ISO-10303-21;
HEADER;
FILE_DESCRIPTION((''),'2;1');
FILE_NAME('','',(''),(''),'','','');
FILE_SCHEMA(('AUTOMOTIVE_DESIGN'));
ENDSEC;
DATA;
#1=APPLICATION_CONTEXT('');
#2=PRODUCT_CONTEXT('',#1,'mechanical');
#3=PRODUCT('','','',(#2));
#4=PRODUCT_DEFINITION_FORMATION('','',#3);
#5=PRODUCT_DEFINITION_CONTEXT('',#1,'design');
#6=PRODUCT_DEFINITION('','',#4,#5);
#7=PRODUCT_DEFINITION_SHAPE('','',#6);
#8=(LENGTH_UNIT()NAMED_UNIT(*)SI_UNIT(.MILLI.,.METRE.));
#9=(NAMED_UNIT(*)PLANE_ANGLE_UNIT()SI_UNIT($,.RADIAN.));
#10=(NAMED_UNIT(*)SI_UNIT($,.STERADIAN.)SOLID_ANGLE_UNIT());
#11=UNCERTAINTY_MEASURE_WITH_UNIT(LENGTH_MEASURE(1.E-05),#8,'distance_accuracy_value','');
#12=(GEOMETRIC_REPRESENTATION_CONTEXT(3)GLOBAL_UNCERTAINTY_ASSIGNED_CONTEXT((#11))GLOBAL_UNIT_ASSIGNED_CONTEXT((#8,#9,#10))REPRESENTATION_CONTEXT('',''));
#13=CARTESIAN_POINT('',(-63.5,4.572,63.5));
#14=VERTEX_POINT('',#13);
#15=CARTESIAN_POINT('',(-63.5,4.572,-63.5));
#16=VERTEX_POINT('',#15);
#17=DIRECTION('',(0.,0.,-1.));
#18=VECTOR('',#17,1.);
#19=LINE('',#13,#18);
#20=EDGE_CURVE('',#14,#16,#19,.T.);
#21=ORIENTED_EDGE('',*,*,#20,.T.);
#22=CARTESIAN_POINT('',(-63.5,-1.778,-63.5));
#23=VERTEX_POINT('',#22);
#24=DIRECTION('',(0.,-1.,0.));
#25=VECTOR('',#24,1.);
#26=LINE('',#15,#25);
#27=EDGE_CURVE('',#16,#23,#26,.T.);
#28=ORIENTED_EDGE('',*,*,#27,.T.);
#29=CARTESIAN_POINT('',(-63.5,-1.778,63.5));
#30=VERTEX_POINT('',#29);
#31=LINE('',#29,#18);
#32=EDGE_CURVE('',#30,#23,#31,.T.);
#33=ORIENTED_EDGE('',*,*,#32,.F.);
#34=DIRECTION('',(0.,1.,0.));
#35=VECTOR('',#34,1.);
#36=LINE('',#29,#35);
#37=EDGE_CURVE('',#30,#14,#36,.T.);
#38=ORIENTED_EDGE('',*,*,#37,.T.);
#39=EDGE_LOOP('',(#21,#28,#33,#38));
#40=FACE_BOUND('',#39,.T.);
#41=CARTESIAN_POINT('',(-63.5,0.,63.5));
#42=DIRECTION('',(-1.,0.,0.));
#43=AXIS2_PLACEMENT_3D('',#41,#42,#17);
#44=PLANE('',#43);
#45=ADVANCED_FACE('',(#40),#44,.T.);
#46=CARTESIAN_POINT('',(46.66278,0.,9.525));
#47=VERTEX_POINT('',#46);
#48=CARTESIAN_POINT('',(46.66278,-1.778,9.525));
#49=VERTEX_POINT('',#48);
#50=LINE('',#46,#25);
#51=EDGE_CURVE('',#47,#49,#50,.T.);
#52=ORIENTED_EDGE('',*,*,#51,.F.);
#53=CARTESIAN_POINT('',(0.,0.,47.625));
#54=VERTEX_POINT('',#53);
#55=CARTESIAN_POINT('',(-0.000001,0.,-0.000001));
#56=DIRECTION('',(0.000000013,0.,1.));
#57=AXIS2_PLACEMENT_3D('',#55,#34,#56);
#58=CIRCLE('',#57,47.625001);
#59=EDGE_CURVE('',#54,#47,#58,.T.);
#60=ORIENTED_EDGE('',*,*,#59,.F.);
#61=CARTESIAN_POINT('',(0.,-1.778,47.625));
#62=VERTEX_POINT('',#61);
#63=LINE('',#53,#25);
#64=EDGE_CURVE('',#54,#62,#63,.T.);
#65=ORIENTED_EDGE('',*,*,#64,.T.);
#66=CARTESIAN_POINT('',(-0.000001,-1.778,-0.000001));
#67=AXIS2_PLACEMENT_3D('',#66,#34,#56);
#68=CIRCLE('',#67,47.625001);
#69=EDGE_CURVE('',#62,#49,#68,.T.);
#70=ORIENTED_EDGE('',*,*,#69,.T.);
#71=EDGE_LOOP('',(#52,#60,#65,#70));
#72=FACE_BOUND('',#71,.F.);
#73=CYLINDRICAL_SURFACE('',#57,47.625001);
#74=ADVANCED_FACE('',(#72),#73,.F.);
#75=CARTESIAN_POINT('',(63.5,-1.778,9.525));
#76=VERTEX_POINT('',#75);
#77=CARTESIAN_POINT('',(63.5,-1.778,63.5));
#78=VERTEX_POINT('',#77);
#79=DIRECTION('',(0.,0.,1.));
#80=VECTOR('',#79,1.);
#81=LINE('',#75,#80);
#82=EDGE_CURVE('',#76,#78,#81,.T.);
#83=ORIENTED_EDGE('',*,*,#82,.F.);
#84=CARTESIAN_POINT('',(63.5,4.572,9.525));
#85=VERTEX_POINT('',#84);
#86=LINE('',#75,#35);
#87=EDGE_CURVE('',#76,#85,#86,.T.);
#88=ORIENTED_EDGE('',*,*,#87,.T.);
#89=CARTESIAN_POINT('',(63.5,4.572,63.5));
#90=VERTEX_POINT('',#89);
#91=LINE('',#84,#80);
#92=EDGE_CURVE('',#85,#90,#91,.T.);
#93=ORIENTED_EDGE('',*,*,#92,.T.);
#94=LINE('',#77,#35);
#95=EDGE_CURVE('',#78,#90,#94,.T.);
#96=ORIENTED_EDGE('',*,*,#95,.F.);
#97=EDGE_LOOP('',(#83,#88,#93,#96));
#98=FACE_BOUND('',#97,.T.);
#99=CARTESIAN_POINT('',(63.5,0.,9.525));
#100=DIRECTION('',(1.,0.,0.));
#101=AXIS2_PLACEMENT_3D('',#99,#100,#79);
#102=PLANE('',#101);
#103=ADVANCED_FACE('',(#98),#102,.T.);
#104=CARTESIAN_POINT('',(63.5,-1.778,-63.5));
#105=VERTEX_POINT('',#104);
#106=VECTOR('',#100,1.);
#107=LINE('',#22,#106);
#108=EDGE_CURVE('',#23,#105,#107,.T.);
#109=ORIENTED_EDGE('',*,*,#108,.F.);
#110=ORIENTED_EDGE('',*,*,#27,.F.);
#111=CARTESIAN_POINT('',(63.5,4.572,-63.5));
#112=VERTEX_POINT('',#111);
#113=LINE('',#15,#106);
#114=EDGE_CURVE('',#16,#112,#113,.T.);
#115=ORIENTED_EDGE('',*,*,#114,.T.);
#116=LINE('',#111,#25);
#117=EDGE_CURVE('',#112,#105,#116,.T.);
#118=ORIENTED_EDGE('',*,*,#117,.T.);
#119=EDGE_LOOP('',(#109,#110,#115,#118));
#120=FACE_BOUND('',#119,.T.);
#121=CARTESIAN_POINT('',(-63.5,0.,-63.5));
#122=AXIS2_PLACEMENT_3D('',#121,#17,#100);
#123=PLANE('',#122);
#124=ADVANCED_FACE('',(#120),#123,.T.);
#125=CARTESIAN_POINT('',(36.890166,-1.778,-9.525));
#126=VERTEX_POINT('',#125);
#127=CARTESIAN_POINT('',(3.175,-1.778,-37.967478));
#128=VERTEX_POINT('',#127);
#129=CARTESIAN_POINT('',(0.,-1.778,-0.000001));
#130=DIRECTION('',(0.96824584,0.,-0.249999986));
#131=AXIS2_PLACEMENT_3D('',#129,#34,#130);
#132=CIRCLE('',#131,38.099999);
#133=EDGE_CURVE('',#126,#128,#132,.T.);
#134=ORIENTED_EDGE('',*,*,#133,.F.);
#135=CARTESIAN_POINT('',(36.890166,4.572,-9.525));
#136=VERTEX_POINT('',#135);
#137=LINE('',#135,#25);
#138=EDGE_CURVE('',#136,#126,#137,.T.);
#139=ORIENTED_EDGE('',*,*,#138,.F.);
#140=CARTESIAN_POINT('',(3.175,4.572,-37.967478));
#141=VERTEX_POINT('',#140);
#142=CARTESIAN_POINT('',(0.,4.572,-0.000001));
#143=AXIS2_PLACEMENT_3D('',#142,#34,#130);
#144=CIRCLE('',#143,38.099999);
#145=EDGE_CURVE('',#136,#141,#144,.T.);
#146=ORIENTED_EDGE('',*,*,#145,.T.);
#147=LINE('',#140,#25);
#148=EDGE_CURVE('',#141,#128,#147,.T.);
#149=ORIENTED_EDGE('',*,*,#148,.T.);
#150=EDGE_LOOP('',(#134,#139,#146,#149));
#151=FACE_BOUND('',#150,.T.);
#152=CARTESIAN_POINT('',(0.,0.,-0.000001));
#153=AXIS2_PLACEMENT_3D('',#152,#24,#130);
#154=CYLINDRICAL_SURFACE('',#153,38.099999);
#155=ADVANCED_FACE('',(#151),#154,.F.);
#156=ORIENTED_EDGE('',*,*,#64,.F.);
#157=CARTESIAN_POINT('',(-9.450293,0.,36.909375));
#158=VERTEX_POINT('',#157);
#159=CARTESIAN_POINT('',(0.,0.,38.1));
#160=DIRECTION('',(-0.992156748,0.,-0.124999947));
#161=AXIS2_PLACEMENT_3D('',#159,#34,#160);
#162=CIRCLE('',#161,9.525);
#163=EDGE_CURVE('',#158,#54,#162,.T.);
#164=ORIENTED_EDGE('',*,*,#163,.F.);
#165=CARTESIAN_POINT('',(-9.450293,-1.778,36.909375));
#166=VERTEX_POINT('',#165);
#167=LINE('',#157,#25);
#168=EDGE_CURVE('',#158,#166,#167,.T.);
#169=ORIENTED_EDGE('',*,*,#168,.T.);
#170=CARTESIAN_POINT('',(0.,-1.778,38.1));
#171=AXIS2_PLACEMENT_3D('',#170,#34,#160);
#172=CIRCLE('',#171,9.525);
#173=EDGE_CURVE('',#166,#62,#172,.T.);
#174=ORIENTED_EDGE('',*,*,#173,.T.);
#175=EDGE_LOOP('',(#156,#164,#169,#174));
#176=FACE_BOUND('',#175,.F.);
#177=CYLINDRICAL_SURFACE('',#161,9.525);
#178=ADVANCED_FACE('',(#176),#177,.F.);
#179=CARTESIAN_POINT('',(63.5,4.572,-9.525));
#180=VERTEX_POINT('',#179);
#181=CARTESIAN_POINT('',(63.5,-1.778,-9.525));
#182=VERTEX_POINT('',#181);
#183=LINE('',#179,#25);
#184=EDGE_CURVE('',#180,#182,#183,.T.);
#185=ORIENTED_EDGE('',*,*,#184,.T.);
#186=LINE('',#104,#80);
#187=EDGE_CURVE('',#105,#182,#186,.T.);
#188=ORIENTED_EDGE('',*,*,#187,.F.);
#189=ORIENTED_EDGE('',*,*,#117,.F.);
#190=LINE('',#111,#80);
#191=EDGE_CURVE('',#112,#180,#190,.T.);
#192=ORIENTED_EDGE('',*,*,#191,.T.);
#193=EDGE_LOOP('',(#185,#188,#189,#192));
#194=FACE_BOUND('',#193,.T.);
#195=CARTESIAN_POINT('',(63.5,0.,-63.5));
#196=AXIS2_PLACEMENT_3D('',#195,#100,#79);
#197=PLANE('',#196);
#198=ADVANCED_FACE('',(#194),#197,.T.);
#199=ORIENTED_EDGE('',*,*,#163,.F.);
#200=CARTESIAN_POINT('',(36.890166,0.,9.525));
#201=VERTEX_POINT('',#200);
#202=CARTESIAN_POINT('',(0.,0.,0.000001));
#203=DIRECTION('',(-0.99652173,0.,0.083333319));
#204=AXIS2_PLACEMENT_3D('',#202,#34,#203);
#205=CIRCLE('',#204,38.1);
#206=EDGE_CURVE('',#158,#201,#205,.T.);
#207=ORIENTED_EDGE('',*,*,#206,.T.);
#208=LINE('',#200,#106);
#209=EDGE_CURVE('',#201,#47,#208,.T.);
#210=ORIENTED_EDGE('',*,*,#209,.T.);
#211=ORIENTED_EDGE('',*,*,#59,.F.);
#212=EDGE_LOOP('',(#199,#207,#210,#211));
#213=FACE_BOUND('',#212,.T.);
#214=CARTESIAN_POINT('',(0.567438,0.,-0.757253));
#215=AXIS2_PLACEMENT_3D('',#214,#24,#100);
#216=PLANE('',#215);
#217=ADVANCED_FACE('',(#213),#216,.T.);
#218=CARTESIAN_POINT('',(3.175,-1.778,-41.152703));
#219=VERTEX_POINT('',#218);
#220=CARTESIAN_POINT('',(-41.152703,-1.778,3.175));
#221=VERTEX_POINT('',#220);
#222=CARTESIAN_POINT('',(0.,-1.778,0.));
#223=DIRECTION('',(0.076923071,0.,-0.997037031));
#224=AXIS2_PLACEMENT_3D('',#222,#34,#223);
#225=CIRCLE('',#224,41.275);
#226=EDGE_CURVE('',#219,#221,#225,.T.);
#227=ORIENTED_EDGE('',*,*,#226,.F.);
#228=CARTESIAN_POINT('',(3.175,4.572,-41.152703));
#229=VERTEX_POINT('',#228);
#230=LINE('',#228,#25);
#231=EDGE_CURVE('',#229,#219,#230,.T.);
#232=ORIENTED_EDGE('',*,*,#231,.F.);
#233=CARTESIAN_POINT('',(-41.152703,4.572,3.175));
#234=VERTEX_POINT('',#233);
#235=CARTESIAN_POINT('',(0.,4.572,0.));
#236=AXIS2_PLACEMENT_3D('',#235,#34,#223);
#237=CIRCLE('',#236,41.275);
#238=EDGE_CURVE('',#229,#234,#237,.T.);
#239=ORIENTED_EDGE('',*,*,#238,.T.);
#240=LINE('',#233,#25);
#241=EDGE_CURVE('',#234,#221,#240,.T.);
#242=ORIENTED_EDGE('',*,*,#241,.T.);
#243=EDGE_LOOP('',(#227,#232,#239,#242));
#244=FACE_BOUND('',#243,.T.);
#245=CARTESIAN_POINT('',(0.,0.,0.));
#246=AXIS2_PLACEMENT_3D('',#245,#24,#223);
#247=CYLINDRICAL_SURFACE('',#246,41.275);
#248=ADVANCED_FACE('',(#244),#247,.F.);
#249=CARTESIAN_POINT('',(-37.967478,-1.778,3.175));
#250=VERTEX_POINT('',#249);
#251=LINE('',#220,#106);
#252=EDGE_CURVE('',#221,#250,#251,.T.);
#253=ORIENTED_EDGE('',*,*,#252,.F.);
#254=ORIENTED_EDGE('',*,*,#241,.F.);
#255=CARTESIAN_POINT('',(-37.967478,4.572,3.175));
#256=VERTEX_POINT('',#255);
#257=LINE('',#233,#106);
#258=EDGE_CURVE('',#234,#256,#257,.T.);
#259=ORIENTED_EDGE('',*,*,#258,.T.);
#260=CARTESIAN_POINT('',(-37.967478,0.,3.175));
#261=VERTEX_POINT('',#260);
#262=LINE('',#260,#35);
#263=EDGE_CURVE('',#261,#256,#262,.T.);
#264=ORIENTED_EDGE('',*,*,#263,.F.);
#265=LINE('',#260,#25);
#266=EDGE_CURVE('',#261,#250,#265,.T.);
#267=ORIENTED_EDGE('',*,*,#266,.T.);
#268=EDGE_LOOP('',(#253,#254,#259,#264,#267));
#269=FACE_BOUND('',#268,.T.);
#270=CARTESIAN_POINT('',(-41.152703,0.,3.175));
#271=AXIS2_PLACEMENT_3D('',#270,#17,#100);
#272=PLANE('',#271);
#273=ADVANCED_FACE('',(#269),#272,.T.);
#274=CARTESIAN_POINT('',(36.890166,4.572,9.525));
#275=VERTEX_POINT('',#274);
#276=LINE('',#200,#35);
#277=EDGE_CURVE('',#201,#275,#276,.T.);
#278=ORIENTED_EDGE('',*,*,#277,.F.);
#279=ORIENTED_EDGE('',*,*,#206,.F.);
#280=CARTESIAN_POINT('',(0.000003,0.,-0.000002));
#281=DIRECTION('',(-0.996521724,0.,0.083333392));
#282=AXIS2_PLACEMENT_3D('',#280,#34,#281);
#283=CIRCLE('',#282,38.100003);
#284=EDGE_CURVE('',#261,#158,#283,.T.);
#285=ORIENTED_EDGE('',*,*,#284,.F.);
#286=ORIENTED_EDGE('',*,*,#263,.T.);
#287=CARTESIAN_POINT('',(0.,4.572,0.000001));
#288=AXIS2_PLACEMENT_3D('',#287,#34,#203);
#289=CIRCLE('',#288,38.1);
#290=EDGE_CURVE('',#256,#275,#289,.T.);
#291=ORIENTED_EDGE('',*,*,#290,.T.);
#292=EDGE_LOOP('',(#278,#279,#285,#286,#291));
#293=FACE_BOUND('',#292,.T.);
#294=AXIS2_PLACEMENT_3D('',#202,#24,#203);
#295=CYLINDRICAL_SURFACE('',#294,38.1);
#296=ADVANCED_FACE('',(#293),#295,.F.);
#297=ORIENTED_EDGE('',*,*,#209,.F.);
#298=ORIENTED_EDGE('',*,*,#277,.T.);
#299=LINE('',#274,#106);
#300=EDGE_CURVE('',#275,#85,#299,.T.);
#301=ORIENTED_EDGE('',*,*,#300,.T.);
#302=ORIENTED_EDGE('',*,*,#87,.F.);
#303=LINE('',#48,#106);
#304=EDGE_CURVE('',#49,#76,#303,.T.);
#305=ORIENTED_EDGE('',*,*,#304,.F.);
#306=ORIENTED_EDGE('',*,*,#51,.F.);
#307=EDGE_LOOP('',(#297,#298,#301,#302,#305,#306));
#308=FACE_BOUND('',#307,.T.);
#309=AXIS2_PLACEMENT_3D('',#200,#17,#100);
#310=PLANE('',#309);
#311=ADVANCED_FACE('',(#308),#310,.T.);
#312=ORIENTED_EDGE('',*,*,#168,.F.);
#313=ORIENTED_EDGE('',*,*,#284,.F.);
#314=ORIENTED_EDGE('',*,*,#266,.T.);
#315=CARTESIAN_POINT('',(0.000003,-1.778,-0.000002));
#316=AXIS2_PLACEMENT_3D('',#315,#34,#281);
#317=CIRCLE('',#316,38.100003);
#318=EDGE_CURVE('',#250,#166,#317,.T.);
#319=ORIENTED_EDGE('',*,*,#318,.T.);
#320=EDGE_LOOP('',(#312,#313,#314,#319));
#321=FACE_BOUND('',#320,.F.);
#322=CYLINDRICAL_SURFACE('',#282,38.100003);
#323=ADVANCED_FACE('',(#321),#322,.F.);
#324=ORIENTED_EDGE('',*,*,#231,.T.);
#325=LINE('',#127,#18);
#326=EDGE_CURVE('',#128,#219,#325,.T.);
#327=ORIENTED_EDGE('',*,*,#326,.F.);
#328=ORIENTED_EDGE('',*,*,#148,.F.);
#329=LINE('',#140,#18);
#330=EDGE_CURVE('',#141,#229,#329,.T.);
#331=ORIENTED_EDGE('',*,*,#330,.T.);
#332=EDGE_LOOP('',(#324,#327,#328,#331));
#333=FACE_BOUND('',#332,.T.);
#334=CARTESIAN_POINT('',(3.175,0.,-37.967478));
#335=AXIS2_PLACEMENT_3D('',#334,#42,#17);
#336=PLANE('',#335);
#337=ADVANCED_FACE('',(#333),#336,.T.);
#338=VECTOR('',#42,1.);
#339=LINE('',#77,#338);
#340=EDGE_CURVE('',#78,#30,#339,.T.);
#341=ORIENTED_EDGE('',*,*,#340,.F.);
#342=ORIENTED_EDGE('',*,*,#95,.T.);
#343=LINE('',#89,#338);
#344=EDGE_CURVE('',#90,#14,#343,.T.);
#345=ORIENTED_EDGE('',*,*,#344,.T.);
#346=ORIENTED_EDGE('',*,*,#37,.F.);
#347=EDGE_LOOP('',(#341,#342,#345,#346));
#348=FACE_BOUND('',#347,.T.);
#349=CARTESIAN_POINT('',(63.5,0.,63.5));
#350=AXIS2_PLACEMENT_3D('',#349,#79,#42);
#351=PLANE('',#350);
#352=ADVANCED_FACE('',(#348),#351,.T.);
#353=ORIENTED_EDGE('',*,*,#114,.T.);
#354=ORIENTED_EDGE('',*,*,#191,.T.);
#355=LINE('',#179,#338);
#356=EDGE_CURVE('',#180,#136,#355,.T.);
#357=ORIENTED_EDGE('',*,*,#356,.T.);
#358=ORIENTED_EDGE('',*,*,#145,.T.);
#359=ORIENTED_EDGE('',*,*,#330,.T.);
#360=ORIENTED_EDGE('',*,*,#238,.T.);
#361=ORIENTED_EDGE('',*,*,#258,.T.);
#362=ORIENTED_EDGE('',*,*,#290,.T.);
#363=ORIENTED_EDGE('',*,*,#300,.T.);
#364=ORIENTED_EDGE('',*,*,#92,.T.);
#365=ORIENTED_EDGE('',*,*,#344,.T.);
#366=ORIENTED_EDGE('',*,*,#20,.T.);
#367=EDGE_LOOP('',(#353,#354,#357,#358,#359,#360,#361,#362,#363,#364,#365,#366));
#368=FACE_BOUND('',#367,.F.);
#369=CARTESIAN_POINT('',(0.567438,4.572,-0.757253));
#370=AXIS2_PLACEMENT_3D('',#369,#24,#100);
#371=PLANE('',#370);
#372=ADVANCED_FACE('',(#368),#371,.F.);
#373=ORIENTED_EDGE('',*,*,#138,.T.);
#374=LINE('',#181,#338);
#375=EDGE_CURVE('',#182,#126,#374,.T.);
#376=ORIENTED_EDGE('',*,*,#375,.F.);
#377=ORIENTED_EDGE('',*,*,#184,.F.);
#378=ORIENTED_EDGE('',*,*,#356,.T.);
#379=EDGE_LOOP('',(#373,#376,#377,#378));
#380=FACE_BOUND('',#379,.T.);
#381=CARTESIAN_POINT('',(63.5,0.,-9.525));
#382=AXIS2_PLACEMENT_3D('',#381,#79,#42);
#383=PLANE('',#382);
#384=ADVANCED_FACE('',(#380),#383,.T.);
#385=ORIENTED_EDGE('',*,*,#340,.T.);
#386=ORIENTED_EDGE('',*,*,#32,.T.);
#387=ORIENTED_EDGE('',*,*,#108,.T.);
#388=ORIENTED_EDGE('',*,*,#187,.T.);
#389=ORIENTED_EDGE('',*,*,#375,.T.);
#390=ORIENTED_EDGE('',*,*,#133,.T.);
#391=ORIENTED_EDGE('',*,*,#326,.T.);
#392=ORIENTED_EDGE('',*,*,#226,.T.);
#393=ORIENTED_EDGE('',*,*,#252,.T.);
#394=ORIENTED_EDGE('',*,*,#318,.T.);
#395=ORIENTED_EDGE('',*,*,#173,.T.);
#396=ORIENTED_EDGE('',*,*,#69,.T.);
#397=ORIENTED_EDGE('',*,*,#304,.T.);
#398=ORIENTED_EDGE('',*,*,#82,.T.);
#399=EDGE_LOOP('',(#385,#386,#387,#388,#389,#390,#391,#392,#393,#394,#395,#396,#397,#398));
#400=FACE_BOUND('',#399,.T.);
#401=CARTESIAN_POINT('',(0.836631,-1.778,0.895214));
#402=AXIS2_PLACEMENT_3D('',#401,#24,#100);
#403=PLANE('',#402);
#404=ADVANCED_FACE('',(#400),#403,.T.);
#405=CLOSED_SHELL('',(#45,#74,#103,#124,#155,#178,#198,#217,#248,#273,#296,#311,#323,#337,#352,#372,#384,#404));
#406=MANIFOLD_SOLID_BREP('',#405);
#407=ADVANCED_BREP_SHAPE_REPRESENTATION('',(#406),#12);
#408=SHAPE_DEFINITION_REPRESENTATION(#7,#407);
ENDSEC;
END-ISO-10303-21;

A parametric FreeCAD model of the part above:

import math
import FreeCAD as App
import Part
import Sketcher
from FreeCAD import Vector
Q = App.Units.Quantity

doc = App.newDocument("Part")
body = doc.addObject("PartDesign::Body", "Body")

# Sketch on XZ plane
sketch1 = body.newObject("Sketcher::SketchObject", "Sketch")
sketch1.AttachmentSupport = (doc.getObject("XZ_Plane"), [""])
sketch1.MapMode = "FlatFace"
sketch1.addGeometry([
    Part.LineSegment(Vector(-63.5, -63.5, 0), Vector(63.5, -63.5, 0)),  # 0
    Part.LineSegment(Vector(63.5, -63.5, 0), Vector(63.5, -9.525, 0)),  # 1
    Part.LineSegment(Vector(63.5, -9.525, 0), Vector(36.890166, -9.525, 0)),  # 2
    Part.ArcOfCircle(Part.Circle(Vector(0, -0.000001, 0), Vector(0, 0, 1), 38.099999), math.radians(-85.219808), math.radians(-14.477511)),  # 3
    Part.LineSegment(Vector(3.175, -37.967478, 0), Vector(3.175, -41.152703, 0)),  # 4
    Part.ArcOfCircle(Part.Circle(Vector(0, 0, 0), Vector(0, 0, 1), 41.275), math.radians(175.588275), math.radians(274.411725)),  # 5
    Part.LineSegment(Vector(-41.152703, 3.175, 0), Vector(-37.967478, 3.175, 0)),  # 6
    Part.ArcOfCircle(Part.Circle(Vector(0.000003, -0.000002, 0), Vector(0, 0, 1), 38.100003), math.radians(104.361515), math.radians(175.219805)),  # 7
    Part.ArcOfCircle(Part.Circle(Vector(0, 38.1, 0), Vector(0, 0, 1), 9.525), math.radians(90.000003), math.radians(187.180753)),  # 8
    Part.ArcOfCircle(Part.Circle(Vector(-0.000001, -0.000001, 0), Vector(0, 0, 1), 47.625001), math.radians(11.53696), math.radians(89.999999)),  # 9
    Part.LineSegment(Vector(46.66278, 9.525, 0), Vector(63.5, 9.525, 0)),  # 10
    Part.LineSegment(Vector(63.5, 9.525, 0), Vector(63.5, 63.5, 0)),  # 11
    Part.LineSegment(Vector(63.5, 63.5, 0), Vector(-63.5, 63.5, 0)),  # 12
    Part.LineSegment(Vector(-63.5, 63.5, 0), Vector(-63.5, -63.5, 0)),  # 13
], False)
sketch1.addConstraint([
    Sketcher.Constraint("Coincident", 0, 2, 1, 1),
    Sketcher.Constraint("Coincident", 1, 2, 2, 1),
    Sketcher.Constraint("Coincident", 2, 2, 3, 2),
    Sketcher.Constraint("Coincident", 3, 1, 4, 1),
    Sketcher.Constraint("Coincident", 4, 2, 5, 2),
    Sketcher.Constraint("Coincident", 5, 1, 6, 1),
    Sketcher.Constraint("Coincident", 6, 2, 7, 2),
    Sketcher.Constraint("Coincident", 7, 1, 8, 2),
    Sketcher.Constraint("Coincident", 8, 1, 9, 2),
    Sketcher.Constraint("Coincident", 9, 1, 10, 1),
    Sketcher.Constraint("Coincident", 10, 2, 11, 1),
    Sketcher.Constraint("Coincident", 11, 2, 12, 1),
    Sketcher.Constraint("Coincident", 12, 2, 13, 1),
    Sketcher.Constraint("Coincident", 13, 2, 0, 1),
    Sketcher.Constraint("Horizontal", 0),
    Sketcher.Constraint("Vertical", 1),
    Sketcher.Constraint("Horizontal", 2),
    Sketcher.Constraint("Vertical", 4),
    Sketcher.Constraint("Horizontal", 6),
    Sketcher.Constraint("Horizontal", 10),
    Sketcher.Constraint("Vertical", 11),
    Sketcher.Constraint("Horizontal", 12),
    Sketcher.Constraint("Vertical", 13),
    Sketcher.Constraint("Coincident", 3, 3, -1, 1),
    Sketcher.Constraint("Coincident", 5, 3, -1, 1),
    Sketcher.Constraint("Coincident", 7, 3, -1, 1),
    Sketcher.Constraint("Coincident", 9, 3, -1, 1),
    Sketcher.Constraint("PointOnObject", 8, 3, -2),
    Sketcher.Constraint("PointOnObject", 8, 1, -2),
    Sketcher.Constraint("Radius", 3, Q("1.5 in")),
    Sketcher.Constraint("Radius", 7, Q("1.5000001 in")),
    Sketcher.Constraint("DistanceX", 0, 1, 0, 2, Q("5 in")),
    Sketcher.Constraint("DistanceX", 12, 2, 12, 1, Q("5 in")),
    Sketcher.Constraint("DistanceY", 13, 2, 13, 1, Q("5 in")),
    Sketcher.Constraint("Radius", 5, Q("1.625 in")),
    Sketcher.Constraint("Radius", 8, Q("0.375 in")),
    Sketcher.Constraint("Radius", 9, Q("1.875 in")),
    Sketcher.Constraint("DistanceY", 0, 2, 8, 3, Q("4 in")),
    Sketcher.Constraint("DistanceX", -1, 1, 0, 2, Q("2.5 in")),
    Sketcher.Constraint("DistanceY", 1, 1, 1, 2, Q("2.125 in")),
    Sketcher.Constraint("DistanceY", 11, 1, 11, 2, Q("2.125 in")),
    Sketcher.Constraint("DistanceX", -1, 1, 3, 1, Q("0.125 in")),
    Sketcher.Constraint("DistanceY", -1, 1, 5, 1, Q("0.125 in")),
])
pad1 = body.newObject("PartDesign::Pad", "Pad")
pad1.Profile = sketch1
pad1.Length = Q("0.07 in")

# Sketch on XZ plane
sketch2 = body.newObject("Sketcher::SketchObject", "Sketch001")
sketch2.AttachmentSupport = (doc.getObject("XZ_Plane"), [""])
sketch2.MapMode = "FlatFace"
sketch2.addGeometry([
    Part.LineSegment(Vector(-63.5, 63.5, 0), Vector(-63.5, -63.5, 0)),  # 0
    Part.LineSegment(Vector(-63.5, -63.5, 0), Vector(63.5, -63.5, 0)),  # 1
    Part.LineSegment(Vector(63.5, -63.5, 0), Vector(63.5, -9.525, 0)),  # 2
    Part.LineSegment(Vector(63.5, -9.525, 0), Vector(36.890166, -9.525, 0)),  # 3
    Part.ArcOfCircle(Part.Circle(Vector(0, -0.000001, 0), Vector(0, 0, 1), 38.099999), math.radians(-85.219808), math.radians(-14.477511)),  # 4
    Part.LineSegment(Vector(3.175, -37.967478, 0), Vector(3.175, -41.152703, 0)),  # 5
    Part.ArcOfCircle(Part.Circle(Vector(0, 0, 0), Vector(0, 0, 1), 41.275), math.radians(175.588275), math.radians(274.411725)),  # 6
    Part.LineSegment(Vector(-41.152703, 3.175, 0), Vector(-37.967478, 3.175, 0)),  # 7
    Part.ArcOfCircle(Part.Circle(Vector(0, 0.000001, 0), Vector(0, 0, 1), 38.1), math.radians(14.477511), math.radians(175.219809)),  # 8
    Part.LineSegment(Vector(36.890166, 9.525, 0), Vector(63.5, 9.525, 0)),  # 9
    Part.LineSegment(Vector(63.5, 9.525, 0), Vector(63.5, 63.5, 0)),  # 10
    Part.LineSegment(Vector(63.5, 63.5, 0), Vector(-63.5, 63.5, 0)),  # 11
], False)
sketch2.addConstraint([
    Sketcher.Constraint("Coincident", 0, 2, 1, 1),
    Sketcher.Constraint("Coincident", 1, 2, 2, 1),
    Sketcher.Constraint("Coincident", 2, 2, 3, 1),
    Sketcher.Constraint("Coincident", 3, 2, 4, 2),
    Sketcher.Constraint("Coincident", 4, 1, 5, 1),
    Sketcher.Constraint("Coincident", 5, 2, 6, 2),
    Sketcher.Constraint("Coincident", 6, 1, 7, 1),
    Sketcher.Constraint("Coincident", 7, 2, 8, 2),
    Sketcher.Constraint("Coincident", 8, 1, 9, 1),
    Sketcher.Constraint("Coincident", 9, 2, 10, 1),
    Sketcher.Constraint("Coincident", 10, 2, 11, 1),
    Sketcher.Constraint("Coincident", 11, 2, 0, 1),
    Sketcher.Constraint("Vertical", 0),
    Sketcher.Constraint("Horizontal", 1),
    Sketcher.Constraint("Vertical", 2),
    Sketcher.Constraint("Horizontal", 3),
    Sketcher.Constraint("Vertical", 5),
    Sketcher.Constraint("Horizontal", 7),
    Sketcher.Constraint("Horizontal", 9),
    Sketcher.Constraint("Vertical", 10),
    Sketcher.Constraint("Horizontal", 11),
    Sketcher.Constraint("Coincident", 4, 3, -1, 1),
    Sketcher.Constraint("Coincident", 6, 3, -1, 1),
    Sketcher.Constraint("Coincident", 8, 3, -1, 1),
    Sketcher.Constraint("Equal", 4, 8),
    Sketcher.Constraint("Symmetric", 0, 2, 10, 2, -1, 1),
    Sketcher.Constraint("Symmetric", 2, 2, 9, 2, -1),
    Sketcher.Constraint("Equal", 11, 0),
    Sketcher.Constraint("Equal", 7, 5),
    Sketcher.Constraint("Radius", 4, Q("1.5 in")),
    Sketcher.Constraint("DistanceX", 1, 1, 1, 2, Q("5 in")),
    Sketcher.Constraint("Radius", 6, Q("1.625 in")),
    Sketcher.Constraint("DistanceY", 2, 1, 2, 2, Q("2.125 in")),
    Sketcher.Constraint("DistanceX", -1, 1, 4, 1, Q("0.125 in")),
])
pad2 = body.newObject("PartDesign::Pad", "Pad001")
pad2.Profile = sketch2
pad2.Length = Q("0.18 in")
pad2.Reversed = True

doc.recompute()
